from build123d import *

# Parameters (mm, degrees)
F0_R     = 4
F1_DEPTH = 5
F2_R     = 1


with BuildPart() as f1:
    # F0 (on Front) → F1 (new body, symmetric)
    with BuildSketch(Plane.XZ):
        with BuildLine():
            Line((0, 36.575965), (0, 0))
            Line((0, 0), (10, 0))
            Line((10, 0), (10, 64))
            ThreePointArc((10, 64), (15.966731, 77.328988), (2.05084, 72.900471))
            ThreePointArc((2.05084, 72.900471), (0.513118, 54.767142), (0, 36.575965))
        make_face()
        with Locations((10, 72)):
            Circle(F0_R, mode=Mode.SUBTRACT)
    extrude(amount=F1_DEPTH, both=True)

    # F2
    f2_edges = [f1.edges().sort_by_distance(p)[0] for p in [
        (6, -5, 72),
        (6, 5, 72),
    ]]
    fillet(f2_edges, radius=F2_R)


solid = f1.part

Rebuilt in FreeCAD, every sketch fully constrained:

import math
import FreeCAD as App
import Part
import Sketcher

V = App.Vector
Q = App.Units.Quantity


def edges_at(feature, points):
    """Names of the edges that pass closest to the given points."""
    edges = feature.Shape.Edges
    near = lambda p: min(range(len(edges)), key=lambda i: edges[i].distToShape(Part.Vertex(*p))[0])
    return sorted({f"Edge{near(p) + 1}" for p in points})

doc = App.newDocument("Part")
body = doc.addObject("PartDesign::Body", "Body")

# Sketch on XZ plane
sketch1 = body.newObject("Sketcher::SketchObject", "Sketch")
sketch1.AttachmentSupport = (doc.getObject("XZ_Plane"), [""])
sketch1.MapMode = "FlatFace"
sketch1.addGeometry(Part.LineSegment(V(0, 36.575965, 0), V(0, 0, 0)), False)
sketch1.addGeometry(Part.LineSegment(V(0, 0, 0), V(10, 0, 0)), False)
sketch1.addGeometry(Part.LineSegment(V(10, 0, 0), V(10, 64, 0)), False)
sketch1.addGeometry(Part.ArcOfCircle(Part.Circle(V(10, 72, 0), V(0, 0, 1), 8), math.radians(-90.000001), math.radians(173.537153)), False)
sketch1.addGeometry(Part.ArcOfCircle(Part.Circle(V(322.715536, 36.575963, 0), V(0, 0, 1), 322.715536), math.radians(173.537153), math.radians(180)), False)
sketch1.addGeometry(Part.Circle(V(10, 72, 0), V(0, 0, 1), 4), False)
sketch1.addConstraint(Sketcher.Constraint("Coincident", 0, 2, 1, 1))
sketch1.addConstraint(Sketcher.Constraint("Coincident", 1, 2, 2, 1))
sketch1.addConstraint(Sketcher.Constraint("Coincident", 2, 2, 3, 1))
sketch1.addConstraint(Sketcher.Constraint("Tangent", 3, 2, 4, 1))
sketch1.addConstraint(Sketcher.Constraint("Tangent", 4, 2, 0, 1))
sketch1.addConstraint(Sketcher.Constraint("Vertical", 0))
sketch1.addConstraint(Sketcher.Constraint("Horizontal", 1))
sketch1.addConstraint(Sketcher.Constraint("Vertical", 2))
sketch1.addConstraint(Sketcher.Constraint("Coincident", 0, 2, -1, 1))
sketch1.addConstraint(Sketcher.Constraint("Coincident", 5, 3, 3, 3))
sketch1.addConstraint(Sketcher.Constraint("Vertical", 5, 3, 1, 2))
sketch1.addConstraint(Sketcher.Constraint("Diameter", 5, Q("8 mm")))
sketch1.addConstraint(Sketcher.Constraint("Radius", 3, Q("8 mm")))
sketch1.addConstraint(Sketcher.Constraint("DistanceX", 1, 1, 1, 2, Q("10 mm")))
sketch1.addConstraint(Sketcher.Constraint("DistanceY", 2, 1, 2, 2, Q("64 mm")))
sketch1.addConstraint(Sketcher.Constraint("Radius", 4, Q("322.715536 mm")))
pad1 = body.newObject("PartDesign::Pad", "Pad")
pad1.Profile = sketch1
pad1.Length = 10
pad1.Midplane = True
doc.recompute()

fillet = body.newObject("PartDesign::Fillet", "Fillet")
fillet.Base = (pad1, edges_at(pad1, [(6, -5, 72), (6, 5, 72)]))
fillet.Radius = 1

doc.recompute()
